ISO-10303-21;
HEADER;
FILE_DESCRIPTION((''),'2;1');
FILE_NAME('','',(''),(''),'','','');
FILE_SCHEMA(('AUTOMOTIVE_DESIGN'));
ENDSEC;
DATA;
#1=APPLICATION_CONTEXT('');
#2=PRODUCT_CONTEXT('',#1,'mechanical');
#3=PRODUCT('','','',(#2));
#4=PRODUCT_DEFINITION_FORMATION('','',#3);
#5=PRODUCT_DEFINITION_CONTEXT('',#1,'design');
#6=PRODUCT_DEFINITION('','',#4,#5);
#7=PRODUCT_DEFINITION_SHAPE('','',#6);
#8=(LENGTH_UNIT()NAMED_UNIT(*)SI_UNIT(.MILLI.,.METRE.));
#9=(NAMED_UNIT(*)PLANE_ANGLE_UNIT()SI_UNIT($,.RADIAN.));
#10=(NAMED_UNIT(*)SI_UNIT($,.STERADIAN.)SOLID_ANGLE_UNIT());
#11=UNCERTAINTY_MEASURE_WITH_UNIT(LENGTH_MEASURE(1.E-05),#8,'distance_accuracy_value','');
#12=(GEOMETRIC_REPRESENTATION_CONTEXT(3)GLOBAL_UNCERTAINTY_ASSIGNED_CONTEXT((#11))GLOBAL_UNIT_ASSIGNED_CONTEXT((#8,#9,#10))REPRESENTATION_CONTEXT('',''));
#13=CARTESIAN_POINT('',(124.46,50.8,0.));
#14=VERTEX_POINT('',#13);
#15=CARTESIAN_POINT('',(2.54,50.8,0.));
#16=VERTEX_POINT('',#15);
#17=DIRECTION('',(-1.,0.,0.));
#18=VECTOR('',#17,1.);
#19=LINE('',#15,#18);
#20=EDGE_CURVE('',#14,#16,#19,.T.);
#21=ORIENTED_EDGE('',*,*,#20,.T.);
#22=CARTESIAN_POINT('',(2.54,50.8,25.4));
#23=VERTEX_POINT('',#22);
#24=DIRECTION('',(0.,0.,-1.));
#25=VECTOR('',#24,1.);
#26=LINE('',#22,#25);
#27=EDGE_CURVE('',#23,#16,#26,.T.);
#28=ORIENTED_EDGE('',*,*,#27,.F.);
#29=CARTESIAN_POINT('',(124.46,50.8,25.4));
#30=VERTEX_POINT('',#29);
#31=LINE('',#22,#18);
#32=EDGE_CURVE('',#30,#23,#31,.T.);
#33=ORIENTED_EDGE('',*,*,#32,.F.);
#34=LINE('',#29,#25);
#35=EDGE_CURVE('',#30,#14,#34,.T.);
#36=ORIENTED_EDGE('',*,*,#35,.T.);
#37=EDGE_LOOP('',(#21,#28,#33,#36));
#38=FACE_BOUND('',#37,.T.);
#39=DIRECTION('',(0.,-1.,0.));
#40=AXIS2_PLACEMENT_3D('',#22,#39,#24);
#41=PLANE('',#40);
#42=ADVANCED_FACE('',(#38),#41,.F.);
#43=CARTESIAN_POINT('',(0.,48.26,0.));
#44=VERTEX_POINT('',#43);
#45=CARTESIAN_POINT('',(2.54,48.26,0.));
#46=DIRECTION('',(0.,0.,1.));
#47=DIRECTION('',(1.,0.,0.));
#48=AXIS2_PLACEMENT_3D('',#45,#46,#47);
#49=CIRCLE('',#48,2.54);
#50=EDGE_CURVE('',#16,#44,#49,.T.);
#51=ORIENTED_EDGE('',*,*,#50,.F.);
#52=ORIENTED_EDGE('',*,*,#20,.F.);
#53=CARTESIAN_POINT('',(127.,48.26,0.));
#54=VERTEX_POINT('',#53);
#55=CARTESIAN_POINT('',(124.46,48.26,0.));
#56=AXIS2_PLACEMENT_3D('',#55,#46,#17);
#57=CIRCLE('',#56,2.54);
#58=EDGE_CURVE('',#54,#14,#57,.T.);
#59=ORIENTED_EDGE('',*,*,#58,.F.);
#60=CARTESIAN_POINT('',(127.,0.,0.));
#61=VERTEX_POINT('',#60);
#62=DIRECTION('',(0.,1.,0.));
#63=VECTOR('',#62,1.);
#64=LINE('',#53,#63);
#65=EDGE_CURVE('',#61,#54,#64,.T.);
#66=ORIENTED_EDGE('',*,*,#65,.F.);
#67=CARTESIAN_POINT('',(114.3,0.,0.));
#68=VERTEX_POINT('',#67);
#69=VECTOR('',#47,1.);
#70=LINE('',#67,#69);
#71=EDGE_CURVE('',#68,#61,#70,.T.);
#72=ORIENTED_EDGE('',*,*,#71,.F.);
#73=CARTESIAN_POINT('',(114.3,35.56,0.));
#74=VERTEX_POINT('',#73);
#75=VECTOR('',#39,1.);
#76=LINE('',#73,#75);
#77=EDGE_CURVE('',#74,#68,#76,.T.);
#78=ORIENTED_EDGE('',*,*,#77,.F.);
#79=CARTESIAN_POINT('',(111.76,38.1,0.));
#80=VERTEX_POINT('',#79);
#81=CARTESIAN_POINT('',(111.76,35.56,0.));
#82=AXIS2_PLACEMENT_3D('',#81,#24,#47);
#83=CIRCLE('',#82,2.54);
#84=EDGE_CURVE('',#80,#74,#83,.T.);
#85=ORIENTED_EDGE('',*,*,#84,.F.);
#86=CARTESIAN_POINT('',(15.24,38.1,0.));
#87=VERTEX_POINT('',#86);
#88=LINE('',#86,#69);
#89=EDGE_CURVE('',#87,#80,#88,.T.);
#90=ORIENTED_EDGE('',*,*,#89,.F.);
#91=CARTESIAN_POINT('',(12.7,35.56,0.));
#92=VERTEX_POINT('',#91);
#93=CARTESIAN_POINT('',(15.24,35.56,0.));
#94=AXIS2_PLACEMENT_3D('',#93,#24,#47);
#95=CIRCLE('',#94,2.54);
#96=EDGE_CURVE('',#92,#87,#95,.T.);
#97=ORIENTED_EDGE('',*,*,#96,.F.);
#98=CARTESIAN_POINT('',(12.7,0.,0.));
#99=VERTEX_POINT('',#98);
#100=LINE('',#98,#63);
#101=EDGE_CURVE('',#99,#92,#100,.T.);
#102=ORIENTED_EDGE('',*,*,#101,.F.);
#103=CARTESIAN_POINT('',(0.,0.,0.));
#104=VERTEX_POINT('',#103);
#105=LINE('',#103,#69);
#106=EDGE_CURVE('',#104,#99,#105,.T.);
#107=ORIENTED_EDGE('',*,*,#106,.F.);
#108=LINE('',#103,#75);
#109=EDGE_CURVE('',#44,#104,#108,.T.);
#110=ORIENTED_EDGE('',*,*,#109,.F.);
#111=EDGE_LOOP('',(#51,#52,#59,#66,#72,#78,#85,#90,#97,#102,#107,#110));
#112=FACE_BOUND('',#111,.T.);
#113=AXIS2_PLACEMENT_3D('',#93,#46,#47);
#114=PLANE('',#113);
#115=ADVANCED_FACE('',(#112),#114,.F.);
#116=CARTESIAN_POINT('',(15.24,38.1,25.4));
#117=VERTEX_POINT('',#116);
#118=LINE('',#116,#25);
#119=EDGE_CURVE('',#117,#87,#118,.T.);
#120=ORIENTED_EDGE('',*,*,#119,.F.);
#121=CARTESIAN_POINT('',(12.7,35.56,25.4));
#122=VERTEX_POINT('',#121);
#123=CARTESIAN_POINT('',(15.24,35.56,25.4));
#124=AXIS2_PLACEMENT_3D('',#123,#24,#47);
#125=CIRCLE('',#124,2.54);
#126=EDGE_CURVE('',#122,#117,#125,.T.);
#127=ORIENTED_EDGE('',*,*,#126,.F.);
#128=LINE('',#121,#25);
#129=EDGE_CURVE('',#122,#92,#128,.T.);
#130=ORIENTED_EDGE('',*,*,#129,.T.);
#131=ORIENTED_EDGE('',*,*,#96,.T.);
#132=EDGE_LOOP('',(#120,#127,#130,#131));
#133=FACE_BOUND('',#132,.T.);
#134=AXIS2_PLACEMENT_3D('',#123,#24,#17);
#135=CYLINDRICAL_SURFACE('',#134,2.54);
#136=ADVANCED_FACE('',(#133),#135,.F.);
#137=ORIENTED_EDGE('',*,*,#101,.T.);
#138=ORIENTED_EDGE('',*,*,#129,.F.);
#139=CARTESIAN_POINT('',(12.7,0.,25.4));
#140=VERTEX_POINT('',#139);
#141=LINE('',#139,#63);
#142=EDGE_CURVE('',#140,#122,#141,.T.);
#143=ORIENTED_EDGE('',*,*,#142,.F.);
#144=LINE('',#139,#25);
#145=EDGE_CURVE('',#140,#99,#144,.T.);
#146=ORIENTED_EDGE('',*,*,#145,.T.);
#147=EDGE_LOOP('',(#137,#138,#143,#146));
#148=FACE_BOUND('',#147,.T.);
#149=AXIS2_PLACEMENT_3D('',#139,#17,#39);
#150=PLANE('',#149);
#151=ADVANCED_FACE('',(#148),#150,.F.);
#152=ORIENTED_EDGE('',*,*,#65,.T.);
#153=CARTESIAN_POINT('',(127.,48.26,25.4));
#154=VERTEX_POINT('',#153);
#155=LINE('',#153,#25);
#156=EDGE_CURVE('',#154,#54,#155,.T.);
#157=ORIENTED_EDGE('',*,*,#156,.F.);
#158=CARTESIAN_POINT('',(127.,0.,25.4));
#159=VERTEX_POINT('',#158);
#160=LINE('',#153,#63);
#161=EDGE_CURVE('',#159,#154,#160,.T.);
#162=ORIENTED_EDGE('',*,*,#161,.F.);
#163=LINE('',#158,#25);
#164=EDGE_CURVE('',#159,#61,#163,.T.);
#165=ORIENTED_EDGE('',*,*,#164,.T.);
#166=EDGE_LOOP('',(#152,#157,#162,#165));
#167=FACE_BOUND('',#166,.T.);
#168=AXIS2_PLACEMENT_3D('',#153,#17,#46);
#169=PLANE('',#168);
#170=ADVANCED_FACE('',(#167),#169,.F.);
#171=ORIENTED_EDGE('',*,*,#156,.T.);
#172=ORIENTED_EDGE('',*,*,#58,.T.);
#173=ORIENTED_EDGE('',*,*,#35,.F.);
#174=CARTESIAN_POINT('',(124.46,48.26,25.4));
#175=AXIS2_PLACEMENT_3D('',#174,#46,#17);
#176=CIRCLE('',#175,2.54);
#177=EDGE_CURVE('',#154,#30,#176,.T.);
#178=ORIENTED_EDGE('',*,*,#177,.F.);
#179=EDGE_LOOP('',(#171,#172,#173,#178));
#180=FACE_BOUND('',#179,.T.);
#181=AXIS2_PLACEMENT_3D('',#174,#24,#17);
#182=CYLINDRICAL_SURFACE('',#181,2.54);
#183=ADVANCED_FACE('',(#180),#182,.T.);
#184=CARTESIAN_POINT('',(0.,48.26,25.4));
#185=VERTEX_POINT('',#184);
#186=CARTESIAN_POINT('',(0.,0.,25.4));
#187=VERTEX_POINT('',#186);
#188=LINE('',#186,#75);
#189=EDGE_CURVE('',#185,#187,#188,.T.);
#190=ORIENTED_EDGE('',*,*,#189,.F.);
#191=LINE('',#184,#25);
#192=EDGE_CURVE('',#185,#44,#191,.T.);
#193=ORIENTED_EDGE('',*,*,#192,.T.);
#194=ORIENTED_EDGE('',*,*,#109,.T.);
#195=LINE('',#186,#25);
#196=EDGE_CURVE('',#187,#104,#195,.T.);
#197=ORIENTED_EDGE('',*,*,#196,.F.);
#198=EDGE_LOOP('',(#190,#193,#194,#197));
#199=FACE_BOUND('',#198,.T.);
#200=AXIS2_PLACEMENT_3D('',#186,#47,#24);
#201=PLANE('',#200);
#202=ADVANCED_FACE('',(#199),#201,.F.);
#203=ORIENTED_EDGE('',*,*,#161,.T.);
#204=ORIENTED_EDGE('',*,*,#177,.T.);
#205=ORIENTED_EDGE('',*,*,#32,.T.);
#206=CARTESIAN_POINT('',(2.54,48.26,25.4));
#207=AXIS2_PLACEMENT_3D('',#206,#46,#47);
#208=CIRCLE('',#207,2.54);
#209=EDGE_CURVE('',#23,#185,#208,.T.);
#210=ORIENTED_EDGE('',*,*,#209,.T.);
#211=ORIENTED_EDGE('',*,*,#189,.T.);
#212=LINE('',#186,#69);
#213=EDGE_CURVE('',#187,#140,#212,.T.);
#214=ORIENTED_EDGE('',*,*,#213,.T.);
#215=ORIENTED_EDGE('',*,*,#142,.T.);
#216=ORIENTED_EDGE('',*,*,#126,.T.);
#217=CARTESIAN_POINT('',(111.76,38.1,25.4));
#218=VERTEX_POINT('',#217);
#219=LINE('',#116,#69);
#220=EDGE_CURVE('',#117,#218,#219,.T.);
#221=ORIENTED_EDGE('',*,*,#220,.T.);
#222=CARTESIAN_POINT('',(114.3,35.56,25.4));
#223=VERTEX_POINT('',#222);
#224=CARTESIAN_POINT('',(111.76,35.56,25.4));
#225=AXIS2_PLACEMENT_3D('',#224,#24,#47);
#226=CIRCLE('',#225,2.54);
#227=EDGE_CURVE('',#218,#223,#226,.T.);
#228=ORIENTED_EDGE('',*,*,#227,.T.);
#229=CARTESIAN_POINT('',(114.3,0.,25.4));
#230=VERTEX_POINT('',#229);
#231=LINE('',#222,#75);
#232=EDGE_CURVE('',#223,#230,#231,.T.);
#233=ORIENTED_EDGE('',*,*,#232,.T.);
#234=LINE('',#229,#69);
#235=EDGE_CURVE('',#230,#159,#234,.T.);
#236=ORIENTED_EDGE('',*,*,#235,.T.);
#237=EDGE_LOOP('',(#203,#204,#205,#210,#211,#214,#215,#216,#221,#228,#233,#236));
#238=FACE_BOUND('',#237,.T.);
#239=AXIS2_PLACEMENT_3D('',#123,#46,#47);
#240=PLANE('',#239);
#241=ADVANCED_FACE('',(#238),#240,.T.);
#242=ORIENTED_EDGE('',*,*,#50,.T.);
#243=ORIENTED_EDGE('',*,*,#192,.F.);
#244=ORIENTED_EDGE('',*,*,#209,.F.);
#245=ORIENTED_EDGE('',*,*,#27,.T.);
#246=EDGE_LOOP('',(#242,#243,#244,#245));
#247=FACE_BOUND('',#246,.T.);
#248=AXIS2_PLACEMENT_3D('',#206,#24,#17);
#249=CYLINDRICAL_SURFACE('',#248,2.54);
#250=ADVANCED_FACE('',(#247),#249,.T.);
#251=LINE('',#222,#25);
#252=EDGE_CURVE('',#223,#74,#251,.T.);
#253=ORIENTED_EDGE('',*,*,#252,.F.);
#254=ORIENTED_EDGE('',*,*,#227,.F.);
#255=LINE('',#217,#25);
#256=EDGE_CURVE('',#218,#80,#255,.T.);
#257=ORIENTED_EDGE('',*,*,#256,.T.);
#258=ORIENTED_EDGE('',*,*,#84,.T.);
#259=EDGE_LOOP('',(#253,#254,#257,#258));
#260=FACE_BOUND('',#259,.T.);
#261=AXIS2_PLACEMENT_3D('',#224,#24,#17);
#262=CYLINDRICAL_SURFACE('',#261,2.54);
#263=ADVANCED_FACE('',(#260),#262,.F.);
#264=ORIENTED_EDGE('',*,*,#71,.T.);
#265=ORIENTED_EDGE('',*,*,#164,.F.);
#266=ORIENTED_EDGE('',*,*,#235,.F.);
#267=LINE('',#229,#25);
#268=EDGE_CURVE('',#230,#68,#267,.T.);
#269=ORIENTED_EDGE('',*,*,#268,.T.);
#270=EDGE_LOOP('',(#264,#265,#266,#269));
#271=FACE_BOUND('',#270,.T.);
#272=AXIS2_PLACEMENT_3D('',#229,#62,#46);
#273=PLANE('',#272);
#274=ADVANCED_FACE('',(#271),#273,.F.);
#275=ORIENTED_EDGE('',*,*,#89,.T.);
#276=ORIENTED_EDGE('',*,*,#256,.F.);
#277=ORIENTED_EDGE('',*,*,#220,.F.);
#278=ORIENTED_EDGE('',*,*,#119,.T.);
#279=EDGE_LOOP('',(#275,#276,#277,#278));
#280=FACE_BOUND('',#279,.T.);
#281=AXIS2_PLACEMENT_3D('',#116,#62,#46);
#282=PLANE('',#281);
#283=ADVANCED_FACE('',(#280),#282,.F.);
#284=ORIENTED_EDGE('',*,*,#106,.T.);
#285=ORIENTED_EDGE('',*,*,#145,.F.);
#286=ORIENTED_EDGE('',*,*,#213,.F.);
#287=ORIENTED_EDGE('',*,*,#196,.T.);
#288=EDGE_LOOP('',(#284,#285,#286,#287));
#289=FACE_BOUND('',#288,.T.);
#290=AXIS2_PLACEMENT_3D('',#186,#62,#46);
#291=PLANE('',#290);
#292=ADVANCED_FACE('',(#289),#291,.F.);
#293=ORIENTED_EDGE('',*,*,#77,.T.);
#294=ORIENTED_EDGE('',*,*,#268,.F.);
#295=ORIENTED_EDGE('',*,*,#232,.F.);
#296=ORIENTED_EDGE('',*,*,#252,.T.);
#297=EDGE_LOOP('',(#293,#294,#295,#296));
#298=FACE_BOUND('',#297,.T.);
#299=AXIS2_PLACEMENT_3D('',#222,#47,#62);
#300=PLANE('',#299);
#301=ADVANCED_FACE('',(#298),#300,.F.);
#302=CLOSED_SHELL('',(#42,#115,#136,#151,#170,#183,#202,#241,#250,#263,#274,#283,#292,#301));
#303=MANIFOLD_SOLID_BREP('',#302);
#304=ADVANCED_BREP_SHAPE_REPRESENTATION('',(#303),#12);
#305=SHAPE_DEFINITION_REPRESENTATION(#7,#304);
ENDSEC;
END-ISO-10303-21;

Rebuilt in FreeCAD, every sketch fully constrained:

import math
import FreeCAD as App
import Part
import Sketcher
from FreeCAD import Vector
Q = App.Units.Quantity

doc = App.newDocument("Part")
body = doc.addObject("PartDesign::Body", "Body")

sketch1 = body.newObject("Sketcher::SketchObject", "Sketch")
sketch1.AttachmentSupport = (doc.getObject("XY_Plane"), [""])
sketch1.MapMode = "FlatFace"
sketch1.addGeometry(Part.LineSegment(Vector(0, 48.3, 0), Vector(0, 0, 0)), False)
sketch1.addGeometry(Part.LineSegment(Vector(0, 0, 0), Vector(12.7, 0, 0)), False)
sketch1.addGeometry(Part.LineSegment(Vector(12.7, 0, 0), Vector(12.7, 35.6, 0)), False)
sketch1.addGeometry(Part.ArcOfCircle(Part.Circle(Vector(15.2, 35.6, 0), Vector(0, 0, 1), 2.5), math.radians(90), math.radians(180)), False)
sketch1.addGeometry(Part.LineSegment(Vector(15.2, 38.1, 0), Vector(111.8, 38.1, 0)), False)
sketch1.addGeometry(Part.ArcOfCircle(Part.Circle(Vector(111.8, 35.6, 0), Vector(0, 0, 1), 2.5), math.radians(0), math.radians(90)), False)
sketch1.addGeometry(Part.LineSegment(Vector(114.3, 35.6, 0), Vector(114.3, 0, 0)), False)
sketch1.addGeometry(Part.LineSegment(Vector(114.3, 0, 0), Vector(127, 0, 0)), False)
sketch1.addGeometry(Part.LineSegment(Vector(127, 0, 0), Vector(127, 48.3, 0)), False)
sketch1.addGeometry(Part.ArcOfCircle(Part.Circle(Vector(124.5, 48.3, 0), Vector(0, 0, 1), 2.5), math.radians(0), math.radians(90)), False)
sketch1.addGeometry(Part.LineSegment(Vector(124.5, 50.8, 0), Vector(2.5, 50.8, 0)), False)
sketch1.addGeometry(Part.ArcOfCircle(Part.Circle(Vector(2.5, 48.3, 0), Vector(0, 0, 1), 2.5), math.radians(90), math.radians(180)), False)
sketch1.addConstraint(Sketcher.Constraint("Coincident", 0, 2, 1, 1))
sketch1.addConstraint(Sketcher.Constraint("Coincident", 1, 2, 2, 1))
sketch1.addConstraint(Sketcher.Constraint("Tangent", 2, 2, 3, 2))
sketch1.addConstraint(Sketcher.Constraint("Tangent", 3, 1, 4, 1))
sketch1.addConstraint(Sketcher.Constraint("Tangent", 4, 2, 5, 2))
sketch1.addConstraint(Sketcher.Constraint("Tangent", 5, 1, 6, 1))
sketch1.addConstraint(Sketcher.Constraint("Coincident", 6, 2, 7, 1))
sketch1.addConstraint(Sketcher.Constraint("Coincident", 7, 2, 8, 1))
sketch1.addConstraint(Sketcher.Constraint("Tangent", 8, 2, 9, 1))
sketch1.addConstraint(Sketcher.Constraint("Tangent", 9, 2, 10, 1))
sketch1.addConstraint(Sketcher.Constraint("Tangent", 10, 2, 11, 1))
sketch1.addConstraint(Sketcher.Constraint("Tangent", 11, 2, 0, 1))
sketch1.addConstraint(Sketcher.Constraint("Vertical", 0))
sketch1.addConstraint(Sketcher.Constraint("Horizontal", 1))
sketch1.addConstraint(Sketcher.Constraint("Vertical", 2))
sketch1.addConstraint(Sketcher.Constraint("Horizontal", 4))
sketch1.addConstraint(Sketcher.Constraint("Vertical", 6))
sketch1.addConstraint(Sketcher.Constraint("Horizontal", 7))
sketch1.addConstraint(Sketcher.Constraint("Vertical", 8))
sketch1.addConstraint(Sketcher.Constraint("Horizontal", 10))
sketch1.addConstraint(Sketcher.Constraint("Coincident", 0, 2, -1, 1))
sketch1.addConstraint(Sketcher.Constraint("Equal", 3, 5))
sketch1.addConstraint(Sketcher.Constraint("Equal", 5, 9))
sketch1.addConstraint(Sketcher.Constraint("Equal", 9, 11))
sketch1.addConstraint(Sketcher.Constraint("PointOnObject", 6, 2, -1))
sketch1.addConstraint(Sketcher.Constraint("Equal", 1, 7))
sketch1.addConstraint(Sketcher.Constraint("Radius", 3, Q("0.1 in")))
sketch1.addConstraint(Sketcher.Constraint("DistanceX", 1, 1, 1, 2, Q("0.5 in")))
sketch1.addConstraint(Sketcher.Constraint("DistanceX", 4, 1, 4, 2, Q("3.8 in")))
sketch1.addConstraint(Sketcher.Constraint("DistanceY", 0, 2, 0, 1, Q("1.9 in")))
sketch1.addConstraint(Sketcher.Constraint("DistanceY", 2, 1, 2, 2, Q("1.4 in")))
pad1 = body.newObject("PartDesign::Pad", "Pad")
pad1.Profile = sketch1
pad1.Length = Q("1 in")

doc.recompute()
